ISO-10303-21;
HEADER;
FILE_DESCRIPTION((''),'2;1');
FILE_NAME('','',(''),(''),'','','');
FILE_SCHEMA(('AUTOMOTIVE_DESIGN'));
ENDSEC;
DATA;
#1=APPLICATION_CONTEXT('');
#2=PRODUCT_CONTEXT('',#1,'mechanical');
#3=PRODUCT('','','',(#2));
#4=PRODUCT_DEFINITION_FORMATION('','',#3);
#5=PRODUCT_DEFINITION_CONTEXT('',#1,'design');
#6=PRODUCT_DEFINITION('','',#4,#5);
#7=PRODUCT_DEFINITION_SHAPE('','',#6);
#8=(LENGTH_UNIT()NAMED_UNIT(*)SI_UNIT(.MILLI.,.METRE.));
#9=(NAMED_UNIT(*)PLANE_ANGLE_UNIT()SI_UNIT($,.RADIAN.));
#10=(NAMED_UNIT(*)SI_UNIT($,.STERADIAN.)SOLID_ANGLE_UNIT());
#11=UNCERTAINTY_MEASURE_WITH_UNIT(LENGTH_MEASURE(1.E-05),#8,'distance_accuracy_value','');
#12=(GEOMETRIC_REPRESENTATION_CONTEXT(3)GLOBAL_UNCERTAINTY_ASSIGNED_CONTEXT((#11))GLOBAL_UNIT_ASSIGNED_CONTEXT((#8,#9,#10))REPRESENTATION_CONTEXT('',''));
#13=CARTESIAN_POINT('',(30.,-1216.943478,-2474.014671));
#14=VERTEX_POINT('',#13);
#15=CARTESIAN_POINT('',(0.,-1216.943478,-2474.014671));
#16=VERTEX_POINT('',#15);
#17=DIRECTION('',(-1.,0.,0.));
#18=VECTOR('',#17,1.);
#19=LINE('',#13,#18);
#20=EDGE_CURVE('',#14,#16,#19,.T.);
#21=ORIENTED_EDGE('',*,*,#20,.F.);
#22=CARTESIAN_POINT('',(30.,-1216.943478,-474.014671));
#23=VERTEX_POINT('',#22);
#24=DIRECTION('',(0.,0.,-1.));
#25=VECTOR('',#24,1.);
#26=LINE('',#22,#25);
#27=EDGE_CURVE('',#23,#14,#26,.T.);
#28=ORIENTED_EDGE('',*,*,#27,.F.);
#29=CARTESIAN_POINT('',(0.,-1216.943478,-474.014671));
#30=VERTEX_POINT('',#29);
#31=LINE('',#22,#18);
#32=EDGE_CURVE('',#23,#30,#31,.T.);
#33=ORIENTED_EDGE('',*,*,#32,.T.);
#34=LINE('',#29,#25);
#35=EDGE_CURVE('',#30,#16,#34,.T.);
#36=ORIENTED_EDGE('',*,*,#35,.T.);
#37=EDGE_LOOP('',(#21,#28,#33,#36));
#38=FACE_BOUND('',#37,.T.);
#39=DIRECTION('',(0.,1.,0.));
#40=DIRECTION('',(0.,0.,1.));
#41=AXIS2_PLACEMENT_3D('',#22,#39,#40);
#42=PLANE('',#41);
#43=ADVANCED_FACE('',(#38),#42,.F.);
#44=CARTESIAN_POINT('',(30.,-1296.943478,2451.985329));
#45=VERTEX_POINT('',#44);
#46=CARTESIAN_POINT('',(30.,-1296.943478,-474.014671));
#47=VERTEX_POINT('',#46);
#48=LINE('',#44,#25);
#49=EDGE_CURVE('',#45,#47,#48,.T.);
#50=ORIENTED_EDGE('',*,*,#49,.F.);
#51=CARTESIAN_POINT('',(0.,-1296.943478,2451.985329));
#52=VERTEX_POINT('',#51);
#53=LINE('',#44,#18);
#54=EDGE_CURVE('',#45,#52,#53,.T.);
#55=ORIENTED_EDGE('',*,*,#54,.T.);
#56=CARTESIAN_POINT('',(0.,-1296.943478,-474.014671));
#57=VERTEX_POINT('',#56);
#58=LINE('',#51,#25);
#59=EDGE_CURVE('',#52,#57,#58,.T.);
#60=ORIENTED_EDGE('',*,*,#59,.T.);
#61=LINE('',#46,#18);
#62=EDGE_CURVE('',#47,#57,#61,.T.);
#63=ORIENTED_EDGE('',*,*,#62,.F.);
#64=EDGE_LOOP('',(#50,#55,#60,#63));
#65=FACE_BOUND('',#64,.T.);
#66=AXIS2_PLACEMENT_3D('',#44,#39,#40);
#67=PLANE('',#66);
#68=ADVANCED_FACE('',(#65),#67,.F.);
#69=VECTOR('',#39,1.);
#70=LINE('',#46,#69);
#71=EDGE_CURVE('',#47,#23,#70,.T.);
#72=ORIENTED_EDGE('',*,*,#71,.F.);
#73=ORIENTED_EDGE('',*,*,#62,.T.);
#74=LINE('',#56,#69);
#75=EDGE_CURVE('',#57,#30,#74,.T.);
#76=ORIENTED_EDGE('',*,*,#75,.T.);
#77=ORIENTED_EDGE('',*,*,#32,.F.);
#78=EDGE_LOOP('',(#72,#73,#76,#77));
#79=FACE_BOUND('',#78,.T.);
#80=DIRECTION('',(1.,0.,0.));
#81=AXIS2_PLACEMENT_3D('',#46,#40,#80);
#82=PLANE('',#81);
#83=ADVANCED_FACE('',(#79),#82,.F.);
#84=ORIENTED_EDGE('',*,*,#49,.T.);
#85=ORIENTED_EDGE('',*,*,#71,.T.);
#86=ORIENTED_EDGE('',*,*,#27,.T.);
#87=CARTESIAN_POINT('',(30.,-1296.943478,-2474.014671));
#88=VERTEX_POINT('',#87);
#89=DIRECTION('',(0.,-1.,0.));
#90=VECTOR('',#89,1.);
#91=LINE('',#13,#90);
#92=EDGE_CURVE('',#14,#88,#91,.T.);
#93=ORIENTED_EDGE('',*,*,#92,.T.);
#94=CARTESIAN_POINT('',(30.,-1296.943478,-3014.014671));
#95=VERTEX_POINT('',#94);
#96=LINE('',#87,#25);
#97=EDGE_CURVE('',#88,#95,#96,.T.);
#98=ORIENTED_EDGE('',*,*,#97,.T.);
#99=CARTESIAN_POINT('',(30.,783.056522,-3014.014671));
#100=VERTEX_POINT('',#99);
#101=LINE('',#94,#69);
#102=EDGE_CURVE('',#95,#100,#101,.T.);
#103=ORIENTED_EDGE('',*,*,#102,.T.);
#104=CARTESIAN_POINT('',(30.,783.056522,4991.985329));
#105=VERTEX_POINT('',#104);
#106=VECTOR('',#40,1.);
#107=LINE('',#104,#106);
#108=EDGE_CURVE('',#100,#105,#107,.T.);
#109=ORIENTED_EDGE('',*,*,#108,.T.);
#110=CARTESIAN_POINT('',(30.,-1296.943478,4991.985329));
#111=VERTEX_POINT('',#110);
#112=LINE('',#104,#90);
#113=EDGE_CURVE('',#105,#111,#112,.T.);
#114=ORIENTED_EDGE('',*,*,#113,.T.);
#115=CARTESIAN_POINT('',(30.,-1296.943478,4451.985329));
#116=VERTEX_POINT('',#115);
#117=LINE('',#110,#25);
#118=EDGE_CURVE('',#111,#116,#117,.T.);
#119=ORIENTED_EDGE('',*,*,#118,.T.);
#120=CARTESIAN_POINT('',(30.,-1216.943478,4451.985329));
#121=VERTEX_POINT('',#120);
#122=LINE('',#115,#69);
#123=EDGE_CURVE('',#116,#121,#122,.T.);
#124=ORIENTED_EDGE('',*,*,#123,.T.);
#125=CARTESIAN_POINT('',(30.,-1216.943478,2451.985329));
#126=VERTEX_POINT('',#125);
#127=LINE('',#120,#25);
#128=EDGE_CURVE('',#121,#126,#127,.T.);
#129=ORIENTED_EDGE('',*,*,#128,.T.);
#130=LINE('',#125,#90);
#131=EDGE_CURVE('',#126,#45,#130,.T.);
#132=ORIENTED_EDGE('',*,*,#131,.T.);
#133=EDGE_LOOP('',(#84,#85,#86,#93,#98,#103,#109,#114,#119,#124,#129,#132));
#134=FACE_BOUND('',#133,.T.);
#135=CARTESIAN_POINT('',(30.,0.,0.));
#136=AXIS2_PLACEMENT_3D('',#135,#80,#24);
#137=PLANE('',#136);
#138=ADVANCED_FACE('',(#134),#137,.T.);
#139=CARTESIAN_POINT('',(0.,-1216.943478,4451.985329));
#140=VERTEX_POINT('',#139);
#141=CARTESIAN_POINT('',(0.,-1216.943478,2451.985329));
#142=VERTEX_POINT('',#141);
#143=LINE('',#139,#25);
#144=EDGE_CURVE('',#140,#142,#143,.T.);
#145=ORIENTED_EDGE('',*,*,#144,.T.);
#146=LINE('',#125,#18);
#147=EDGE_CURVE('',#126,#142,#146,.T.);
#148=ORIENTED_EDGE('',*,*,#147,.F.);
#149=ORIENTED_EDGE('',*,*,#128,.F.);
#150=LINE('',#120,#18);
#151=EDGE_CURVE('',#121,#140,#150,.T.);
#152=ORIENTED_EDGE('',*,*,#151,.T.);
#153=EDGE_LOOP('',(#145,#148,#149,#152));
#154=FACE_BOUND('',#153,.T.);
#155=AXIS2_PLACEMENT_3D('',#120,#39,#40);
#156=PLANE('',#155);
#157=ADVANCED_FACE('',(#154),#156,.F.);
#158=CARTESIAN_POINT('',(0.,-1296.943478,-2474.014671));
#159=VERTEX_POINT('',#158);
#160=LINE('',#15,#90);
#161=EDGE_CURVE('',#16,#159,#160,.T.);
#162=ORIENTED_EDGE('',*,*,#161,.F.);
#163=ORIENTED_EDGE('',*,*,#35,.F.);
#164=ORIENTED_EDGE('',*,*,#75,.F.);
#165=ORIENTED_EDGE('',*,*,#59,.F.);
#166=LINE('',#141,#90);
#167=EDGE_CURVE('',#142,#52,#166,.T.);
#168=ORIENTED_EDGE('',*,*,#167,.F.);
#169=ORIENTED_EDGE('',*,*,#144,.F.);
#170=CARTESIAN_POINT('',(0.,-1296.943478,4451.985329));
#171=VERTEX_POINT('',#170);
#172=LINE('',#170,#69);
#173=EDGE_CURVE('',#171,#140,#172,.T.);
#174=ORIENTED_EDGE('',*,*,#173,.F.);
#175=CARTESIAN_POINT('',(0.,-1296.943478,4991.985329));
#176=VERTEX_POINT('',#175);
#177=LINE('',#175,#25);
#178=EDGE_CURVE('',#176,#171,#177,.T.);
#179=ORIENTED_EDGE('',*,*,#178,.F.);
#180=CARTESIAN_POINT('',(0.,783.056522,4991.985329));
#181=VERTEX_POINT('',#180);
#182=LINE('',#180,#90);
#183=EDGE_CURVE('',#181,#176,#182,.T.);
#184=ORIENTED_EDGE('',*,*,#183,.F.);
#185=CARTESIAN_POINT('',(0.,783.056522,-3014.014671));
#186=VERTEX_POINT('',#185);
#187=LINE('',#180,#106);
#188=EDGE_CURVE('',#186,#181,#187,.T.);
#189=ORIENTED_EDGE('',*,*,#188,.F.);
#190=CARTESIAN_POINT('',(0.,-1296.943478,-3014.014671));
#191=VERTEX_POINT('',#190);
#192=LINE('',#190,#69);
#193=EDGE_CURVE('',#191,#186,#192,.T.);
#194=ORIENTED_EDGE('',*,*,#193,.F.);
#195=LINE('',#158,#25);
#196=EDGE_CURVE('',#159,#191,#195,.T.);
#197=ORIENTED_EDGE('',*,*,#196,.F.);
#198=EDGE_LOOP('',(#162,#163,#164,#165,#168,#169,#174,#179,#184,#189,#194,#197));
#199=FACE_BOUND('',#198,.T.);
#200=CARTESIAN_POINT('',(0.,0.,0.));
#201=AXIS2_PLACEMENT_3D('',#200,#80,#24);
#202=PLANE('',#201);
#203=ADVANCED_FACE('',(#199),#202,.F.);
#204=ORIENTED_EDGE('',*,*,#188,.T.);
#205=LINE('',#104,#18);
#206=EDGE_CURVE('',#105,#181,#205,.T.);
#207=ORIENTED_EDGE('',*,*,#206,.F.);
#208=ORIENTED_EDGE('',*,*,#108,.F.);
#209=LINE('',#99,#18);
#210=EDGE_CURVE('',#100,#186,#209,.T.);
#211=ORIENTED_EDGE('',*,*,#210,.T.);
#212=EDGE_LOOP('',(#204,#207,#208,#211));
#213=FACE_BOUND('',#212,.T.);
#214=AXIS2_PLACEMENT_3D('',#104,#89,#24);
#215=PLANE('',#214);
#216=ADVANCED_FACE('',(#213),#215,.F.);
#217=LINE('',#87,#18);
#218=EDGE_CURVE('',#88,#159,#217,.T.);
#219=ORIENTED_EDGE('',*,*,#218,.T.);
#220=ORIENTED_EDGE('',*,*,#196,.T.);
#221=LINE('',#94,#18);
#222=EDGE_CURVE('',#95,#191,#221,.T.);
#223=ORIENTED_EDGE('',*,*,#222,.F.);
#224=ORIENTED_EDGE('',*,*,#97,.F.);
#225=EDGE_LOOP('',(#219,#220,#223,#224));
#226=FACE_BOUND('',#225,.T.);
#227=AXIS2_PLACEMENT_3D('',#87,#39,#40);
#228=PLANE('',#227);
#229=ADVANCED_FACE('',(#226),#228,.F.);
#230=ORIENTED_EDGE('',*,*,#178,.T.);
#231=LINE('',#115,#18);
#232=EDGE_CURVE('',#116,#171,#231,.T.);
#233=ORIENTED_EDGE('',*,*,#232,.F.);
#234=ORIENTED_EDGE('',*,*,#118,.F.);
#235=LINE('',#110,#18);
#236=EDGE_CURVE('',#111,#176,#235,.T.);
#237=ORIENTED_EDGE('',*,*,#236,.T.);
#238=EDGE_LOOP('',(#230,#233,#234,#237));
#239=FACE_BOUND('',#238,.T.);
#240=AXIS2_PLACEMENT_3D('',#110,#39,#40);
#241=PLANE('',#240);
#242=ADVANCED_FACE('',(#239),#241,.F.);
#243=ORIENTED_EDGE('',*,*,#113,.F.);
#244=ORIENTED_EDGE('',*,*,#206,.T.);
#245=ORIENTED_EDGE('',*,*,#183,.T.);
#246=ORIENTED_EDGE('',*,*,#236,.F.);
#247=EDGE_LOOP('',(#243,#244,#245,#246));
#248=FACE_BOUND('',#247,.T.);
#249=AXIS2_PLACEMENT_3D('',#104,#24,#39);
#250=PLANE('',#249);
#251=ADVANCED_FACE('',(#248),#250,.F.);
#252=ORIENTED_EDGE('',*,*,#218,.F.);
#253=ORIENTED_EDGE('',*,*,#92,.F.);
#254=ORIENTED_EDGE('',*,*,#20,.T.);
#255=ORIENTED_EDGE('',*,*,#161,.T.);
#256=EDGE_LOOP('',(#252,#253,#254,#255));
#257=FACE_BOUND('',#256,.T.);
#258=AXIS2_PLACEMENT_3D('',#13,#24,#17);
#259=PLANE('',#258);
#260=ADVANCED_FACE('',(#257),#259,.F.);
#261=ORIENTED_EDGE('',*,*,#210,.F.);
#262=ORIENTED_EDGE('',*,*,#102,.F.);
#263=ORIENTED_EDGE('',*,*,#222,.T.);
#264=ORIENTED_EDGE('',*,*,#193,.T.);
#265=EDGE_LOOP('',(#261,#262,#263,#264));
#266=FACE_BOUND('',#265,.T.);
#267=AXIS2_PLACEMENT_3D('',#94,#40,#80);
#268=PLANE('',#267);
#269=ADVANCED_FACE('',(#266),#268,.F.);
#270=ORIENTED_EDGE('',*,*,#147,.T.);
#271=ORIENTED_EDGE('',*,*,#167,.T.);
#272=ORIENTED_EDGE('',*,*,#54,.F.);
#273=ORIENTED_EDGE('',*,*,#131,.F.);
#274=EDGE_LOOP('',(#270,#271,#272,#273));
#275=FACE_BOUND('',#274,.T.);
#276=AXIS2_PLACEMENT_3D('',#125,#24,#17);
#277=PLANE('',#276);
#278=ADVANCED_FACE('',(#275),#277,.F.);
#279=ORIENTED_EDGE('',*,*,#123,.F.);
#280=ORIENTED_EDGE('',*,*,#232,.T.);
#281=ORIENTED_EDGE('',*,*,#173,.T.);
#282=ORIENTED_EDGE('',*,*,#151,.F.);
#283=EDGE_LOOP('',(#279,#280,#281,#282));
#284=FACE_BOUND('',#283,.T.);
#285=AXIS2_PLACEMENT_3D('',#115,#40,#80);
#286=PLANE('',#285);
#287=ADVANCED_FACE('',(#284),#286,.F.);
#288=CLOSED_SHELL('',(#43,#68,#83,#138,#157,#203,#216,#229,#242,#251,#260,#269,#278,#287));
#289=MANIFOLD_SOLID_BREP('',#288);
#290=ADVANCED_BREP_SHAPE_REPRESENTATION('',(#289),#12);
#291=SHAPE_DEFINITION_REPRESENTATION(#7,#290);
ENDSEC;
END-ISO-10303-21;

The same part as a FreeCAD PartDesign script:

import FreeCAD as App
import Part
import Sketcher
from FreeCAD import Vector


def add_polygon(sketch, points):
    """Adds a closed chain of lines whose ends are joined by coincident constraints."""
    first, n = sketch.GeometryCount, len(points)
    for a, b in zip(points, points[1:] + points[:1]):
        sketch.addGeometry(Part.LineSegment(App.Vector(*a, 0), App.Vector(*b, 0)), False)
    for i in range(n):
        sketch.addConstraint(Sketcher.Constraint("Coincident", first + i, 2, first + (i + 1) % n, 1))

doc = App.newDocument("Part")
body = doc.addObject("PartDesign::Body", "Body")

sketch1 = body.newObject("Sketcher::SketchObject", "Sketch")
sketch1.AttachmentSupport = (doc.getObject("YZ_Plane"), [""])
sketch1.MapMode = "FlatFace"
add_polygon(sketch1, [(-1297, 4992), (-1297, 4452), (-1217, 4452), (-1217, 2452), (-1297, 2452), (-1297, -474), (-1217, -474), (-1217, -2474), (-1297, -2474), (-1297, -3014), (783, -3014), (783, 4992)])
sketch1.addConstraint([
    Sketcher.Constraint("Vertical", 0),
    Sketcher.Constraint("Horizontal", 1),
    Sketcher.Constraint("Vertical", 2),
    Sketcher.Constraint("Horizontal", 3),
    Sketcher.Constraint("Vertical", 4),
    Sketcher.Constraint("Horizontal", 5),
    Sketcher.Constraint("Vertical", 6),
    Sketcher.Constraint("Horizontal", 7),
    Sketcher.Constraint("Vertical", 8),
    Sketcher.Constraint("Horizontal", 9),
    Sketcher.Constraint("Vertical", 10),
    Sketcher.Constraint("Horizontal", 11),
    Sketcher.Constraint("Vertical", 0, 2, 3, 2),
    Sketcher.Constraint("Vertical", 2, 2, 5, 2),
    Sketcher.Constraint("Vertical", 4, 2, 7, 2),
    Sketcher.Constraint("Equal", 2, 6),
    Sketcher.Constraint("Equal", 0, 8),
    Sketcher.Constraint("DistanceX", 1, 1, 1, 2, 80.0),
    Sketcher.Constraint("DistanceX", 9, 1, 9, 2, 2080.0),
    Sketcher.Constraint("DistanceY", 0, 2, 0, 1, 540.0),
    Sketcher.Constraint("DistanceY", 2, 2, 2, 1, 2000.0),
    Sketcher.Constraint("DistanceY", 4, 2, 4, 1, 2926.0),
    Sketcher.Constraint("DistanceY", -1, 1, 0, 2, 4451.985329),
    Sketcher.Constraint("DistanceX", 0, 2, -1, 1, 1296.943478),
])
pad1 = body.newObject("PartDesign::Pad", "Pad")
pad1.Profile = sketch1
pad1.Length = 30

doc.recompute()
